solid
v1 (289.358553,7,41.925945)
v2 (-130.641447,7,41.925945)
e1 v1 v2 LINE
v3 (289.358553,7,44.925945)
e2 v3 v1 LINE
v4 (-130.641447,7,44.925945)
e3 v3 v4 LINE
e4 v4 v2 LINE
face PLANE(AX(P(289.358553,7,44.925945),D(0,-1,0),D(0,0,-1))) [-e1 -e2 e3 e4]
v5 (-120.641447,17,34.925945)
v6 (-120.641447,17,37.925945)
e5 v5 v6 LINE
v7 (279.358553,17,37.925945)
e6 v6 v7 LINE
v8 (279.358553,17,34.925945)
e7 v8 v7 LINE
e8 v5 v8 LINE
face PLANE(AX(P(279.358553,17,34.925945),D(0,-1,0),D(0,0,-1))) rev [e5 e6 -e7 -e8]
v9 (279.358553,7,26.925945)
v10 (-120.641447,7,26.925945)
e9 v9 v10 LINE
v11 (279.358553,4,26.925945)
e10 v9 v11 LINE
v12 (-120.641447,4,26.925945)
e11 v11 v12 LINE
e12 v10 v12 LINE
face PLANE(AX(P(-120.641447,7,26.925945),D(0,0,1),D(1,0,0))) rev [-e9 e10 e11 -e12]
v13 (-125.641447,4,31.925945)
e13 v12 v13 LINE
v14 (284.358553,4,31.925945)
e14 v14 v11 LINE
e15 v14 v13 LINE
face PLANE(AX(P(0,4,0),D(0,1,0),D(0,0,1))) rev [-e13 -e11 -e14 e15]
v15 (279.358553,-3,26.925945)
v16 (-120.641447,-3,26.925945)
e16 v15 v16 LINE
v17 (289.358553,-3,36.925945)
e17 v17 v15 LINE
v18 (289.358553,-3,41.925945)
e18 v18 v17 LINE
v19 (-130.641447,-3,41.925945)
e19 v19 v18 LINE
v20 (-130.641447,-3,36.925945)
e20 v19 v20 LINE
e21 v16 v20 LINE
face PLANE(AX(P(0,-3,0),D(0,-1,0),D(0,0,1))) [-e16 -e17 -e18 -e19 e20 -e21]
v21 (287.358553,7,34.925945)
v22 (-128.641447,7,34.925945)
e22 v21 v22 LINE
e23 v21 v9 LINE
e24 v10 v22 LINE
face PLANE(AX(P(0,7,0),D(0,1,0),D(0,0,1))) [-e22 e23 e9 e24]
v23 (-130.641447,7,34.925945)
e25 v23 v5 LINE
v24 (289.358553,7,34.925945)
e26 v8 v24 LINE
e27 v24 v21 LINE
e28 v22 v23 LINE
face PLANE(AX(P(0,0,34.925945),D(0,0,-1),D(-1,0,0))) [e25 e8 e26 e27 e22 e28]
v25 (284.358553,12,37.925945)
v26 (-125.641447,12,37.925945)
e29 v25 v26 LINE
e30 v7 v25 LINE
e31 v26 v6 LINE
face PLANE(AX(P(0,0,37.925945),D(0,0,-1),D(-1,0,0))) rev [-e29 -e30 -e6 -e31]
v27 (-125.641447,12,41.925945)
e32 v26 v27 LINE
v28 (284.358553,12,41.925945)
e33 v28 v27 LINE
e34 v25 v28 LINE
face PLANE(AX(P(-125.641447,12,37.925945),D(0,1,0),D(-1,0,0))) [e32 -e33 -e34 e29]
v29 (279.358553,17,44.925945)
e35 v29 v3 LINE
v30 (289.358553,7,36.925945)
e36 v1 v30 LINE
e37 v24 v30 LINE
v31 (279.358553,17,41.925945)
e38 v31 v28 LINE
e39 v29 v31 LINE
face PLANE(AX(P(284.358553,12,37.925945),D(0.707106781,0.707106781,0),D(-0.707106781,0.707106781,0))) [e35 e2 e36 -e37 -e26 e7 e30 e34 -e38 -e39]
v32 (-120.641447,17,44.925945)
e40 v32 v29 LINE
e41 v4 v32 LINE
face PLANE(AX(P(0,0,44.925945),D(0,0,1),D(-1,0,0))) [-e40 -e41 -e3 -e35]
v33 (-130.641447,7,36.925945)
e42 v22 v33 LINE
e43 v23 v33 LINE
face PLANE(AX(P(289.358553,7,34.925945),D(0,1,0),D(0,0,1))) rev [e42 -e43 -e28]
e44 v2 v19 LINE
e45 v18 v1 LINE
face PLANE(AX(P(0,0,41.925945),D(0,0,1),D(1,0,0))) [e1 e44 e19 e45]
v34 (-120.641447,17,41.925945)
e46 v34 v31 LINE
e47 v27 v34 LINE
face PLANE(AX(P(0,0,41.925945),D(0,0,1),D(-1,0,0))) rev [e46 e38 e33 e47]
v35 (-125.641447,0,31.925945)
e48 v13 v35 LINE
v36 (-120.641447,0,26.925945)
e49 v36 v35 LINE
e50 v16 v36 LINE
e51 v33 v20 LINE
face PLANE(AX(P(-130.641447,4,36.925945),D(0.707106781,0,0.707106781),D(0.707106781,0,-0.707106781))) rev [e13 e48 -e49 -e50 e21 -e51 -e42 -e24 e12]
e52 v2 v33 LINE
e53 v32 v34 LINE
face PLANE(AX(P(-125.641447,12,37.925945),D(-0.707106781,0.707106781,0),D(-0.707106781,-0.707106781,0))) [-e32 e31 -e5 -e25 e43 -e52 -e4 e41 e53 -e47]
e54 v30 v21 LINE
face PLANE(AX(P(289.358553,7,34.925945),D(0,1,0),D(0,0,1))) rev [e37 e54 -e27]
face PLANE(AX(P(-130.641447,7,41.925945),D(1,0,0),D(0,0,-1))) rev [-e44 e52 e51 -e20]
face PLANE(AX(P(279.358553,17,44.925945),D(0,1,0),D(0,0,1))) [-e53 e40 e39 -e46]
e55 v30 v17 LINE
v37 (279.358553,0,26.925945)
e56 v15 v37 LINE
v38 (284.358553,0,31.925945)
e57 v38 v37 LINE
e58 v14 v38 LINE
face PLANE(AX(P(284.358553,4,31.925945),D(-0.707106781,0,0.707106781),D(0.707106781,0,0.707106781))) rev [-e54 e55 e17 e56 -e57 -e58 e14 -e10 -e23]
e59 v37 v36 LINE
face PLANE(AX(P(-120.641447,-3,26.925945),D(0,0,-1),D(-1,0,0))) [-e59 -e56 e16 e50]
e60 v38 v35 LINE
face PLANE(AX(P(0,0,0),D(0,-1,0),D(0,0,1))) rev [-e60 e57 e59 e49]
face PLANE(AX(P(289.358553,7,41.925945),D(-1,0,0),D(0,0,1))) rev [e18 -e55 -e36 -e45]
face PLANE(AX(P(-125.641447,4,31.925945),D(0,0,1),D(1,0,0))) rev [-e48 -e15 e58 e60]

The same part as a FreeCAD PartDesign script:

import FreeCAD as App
import Part
import Sketcher
from FreeCAD import Vector


def add_polygon(sketch, points):
    """Adds a closed chain of lines whose ends are joined by coincident constraints."""
    first, n = sketch.GeometryCount, len(points)
    for a, b in zip(points, points[1:] + points[:1]):
        sketch.addGeometry(Part.LineSegment(App.Vector(*a, 0), App.Vector(*b, 0)), False)
    for i in range(n):
        sketch.addConstraint(Sketcher.Constraint("Coincident", first + i, 2, first + (i + 1) % n, 1))

doc = App.newDocument("Part")
body = doc.addObject("PartDesign::Body", "Body")

# Sketch on XZ plane
sketch1 = body.newObject("Sketcher::SketchObject", "Sketch")
sketch1.AttachmentSupport = (doc.getObject("XZ_Plane"), [""])
sketch1.MapMode = "FlatFace"
add_polygon(sketch1, [(-131, 37), (289, 37), (284, 32), (-126, 32)])  # lines 0-3
sketch1.addConstraint([
    Sketcher.Constraint("Horizontal", 0),
    Sketcher.Constraint("Horizontal", 2),
    Sketcher.Constraint("Perpendicular", 1, 3),
    Sketcher.Constraint("Equal", 1, 3),
    Sketcher.Constraint("DistanceX", 0, 1, 0, 2, 420.0),
    Sketcher.Constraint("DistanceX", 2, 2, 2, 1, 410.0),
    Sketcher.Constraint("DistanceX", -1, 1, 0, 2, 289.358553),
    Sketcher.Constraint("DistanceY", -1, 1, 0, 2, 36.925945),
])
pad1 = body.newObject("PartDesign::Pad", "Pad")
pad1.Profile = sketch1
pad1.Length = 4
pad1.Reversed = True

# Sketch on XZ plane
sketch2 = body.newObject("Sketcher::SketchObject", "Sketch001")
sketch2.AttachmentSupport = (doc.getObject("XZ_Plane"), [""])
sketch2.MapMode = "FlatFace"
sketch2.AttachmentOffset = App.Placement(Vector(0, 0, -4), App.Rotation())
add_polygon(sketch2, [(-121, 27), (-131, 37), (289, 37), (279, 27)])  # lines 0-3
sketch2.addConstraint([
    Sketcher.Constraint("Horizontal", 1),
    Sketcher.Constraint("Horizontal", 3),
    Sketcher.Constraint("Perpendicular", 0, 2),
    Sketcher.Constraint("Equal", 0, 2),
    Sketcher.Constraint("DistanceX", 1, 1, 1, 2, 420.0),
    Sketcher.Constraint("DistanceX", 3, 2, 3, 1, 400.0),
    Sketcher.Constraint("DistanceX", 0, 2, -1, 1, 130.641447),
    Sketcher.Constraint("DistanceY", -1, 1, 0, 2, 36.925945),
])
pad2 = body.newObject("PartDesign::Pad", "Pad001")
pad2.Profile = sketch2
pad2.Length = 3
pad2.Reversed = True
doc.recompute()

datumplane = body.newObject("PartDesign::Plane", "DatumPlane")
datumplane.AttachmentSupport = (doc.getObject("XZ_Plane"), [""])
datumplane.MapMode = "FlatFace"
datumplane.AttachmentOffset = App.Placement(Vector(0, 0, -2), App.Rotation())
mirrored = body.newObject("PartDesign::Mirrored", "Mirrored")
mirrored.Originals = [pad2]
mirrored.MirrorPlane = (datumplane, [""])
body.Tip = mirrored

# Sketch on XY plane
sketch3 = body.newObject("Sketcher::SketchObject", "Sketch002")
sketch3.AttachmentSupport = (doc.getObject("XY_Plane"), [""])
sketch3.MapMode = "FlatFace"
sketch3.AttachmentOffset = App.Placement(Vector(0, 0, 36.925945), App.Rotation())
add_polygon(sketch3, [(-131, 7), (-131, -3), (289, -3), (289, 7)])  # lines 0-3
sketch3.addConstraint([
    Sketcher.Constraint("Vertical", 0),
    Sketcher.Constraint("Horizontal", 1),
    Sketcher.Constraint("Vertical", 2),
    Sketcher.Constraint("Horizontal", 3),
    Sketcher.Constraint("DistanceX", 1, 1, 1, 2, 420.0),
    Sketcher.Constraint("DistanceY", 0, 2, 0, 1, 10.0),
    Sketcher.Constraint("DistanceY", 0, 2, -1, 1, 3.0),
    Sketcher.Constraint("DistanceX", 0, 2, -1, 1, 130.641447),
])
pad3 = body.newObject("PartDesign::Pad", "Pad002")
pad3.Profile = sketch3
pad3.Length = 5

# Sketch on XY plane
sketch4 = body.newObject("Sketcher::SketchObject", "Sketch003")
sketch4.AttachmentSupport = (doc.getObject("XY_Plane"), [""])
sketch4.MapMode = "FlatFace"
sketch4.AttachmentOffset = App.Placement(Vector(0, 0, 41.925945), App.Rotation())
add_polygon(sketch4, [(-131, 7), (289, 7), (284, 12), (-126, 12)])  # lines 0-3
sketch4.addConstraint([
    Sketcher.Constraint("Horizontal", 0),
    Sketcher.Constraint("Horizontal", 2),
    Sketcher.Constraint("Perpendicular", 1, 3),
    Sketcher.Constraint("Equal", 1, 3),
    Sketcher.Constraint("DistanceX", 0, 1, 0, 2, 420.0),
    Sketcher.Constraint("DistanceX", 2, 2, 2, 1, 410.0),
    Sketcher.Constraint("DistanceY", -1, 1, 0, 2, 7.0),
    Sketcher.Constraint("DistanceX", -1, 1, 0, 2, 289.358553),
])
pad4 = body.newObject("PartDesign::Pad", "Pad003")
pad4.Profile = sketch4
pad4.Length = 4
pad4.Reversed = True

# Sketch on XY plane
sketch5 = body.newObject("Sketcher::SketchObject", "Sketch004")
sketch5.AttachmentSupport = (doc.getObject("XY_Plane"), [""])
sketch5.MapMode = "FlatFace"
sketch5.AttachmentOffset = App.Placement(Vector(0, 0, 37.925945), App.Rotation())
add_polygon(sketch5, [(279, 17), (289, 7), (-131, 7), (-121, 17)])  # lines 0-3
sketch5.addConstraint([
    Sketcher.Constraint("Horizontal", 1),
    Sketcher.Constraint("Horizontal", 3),
    Sketcher.Constraint("Perpendicular", 0, 2),
    Sketcher.Constraint("Equal", 0, 2),
    Sketcher.Constraint("DistanceX", 1, 2, 1, 1, 420.0),
    Sketcher.Constraint("DistanceX", 3, 1, 3, 2, 400.0),
    Sketcher.Constraint("DistanceY", -1, 1, 0, 2, 7.0),
    Sketcher.Constraint("DistanceX", -1, 1, 0, 2, 289.358553),
])
pad5 = body.newObject("PartDesign::Pad", "Pad004")
pad5.Profile = sketch5
pad5.Length = 3
pad5.Reversed = True
doc.recompute()

datumplane2 = body.newObject("PartDesign::Plane", "DatumPlane001")
datumplane2.AttachmentSupport = (doc.getObject("XY_Plane"), [""])
datumplane2.MapMode = "FlatFace"
datumplane2.AttachmentOffset = App.Placement(Vector(0, 0, 39.925945), App.Rotation())
mirrored2 = body.newObject("PartDesign::Mirrored", "Mirrored001")
mirrored2.Originals = [pad5]
mirrored2.MirrorPlane = (datumplane2, [""])
body.Tip = mirrored2

doc.recompute()
